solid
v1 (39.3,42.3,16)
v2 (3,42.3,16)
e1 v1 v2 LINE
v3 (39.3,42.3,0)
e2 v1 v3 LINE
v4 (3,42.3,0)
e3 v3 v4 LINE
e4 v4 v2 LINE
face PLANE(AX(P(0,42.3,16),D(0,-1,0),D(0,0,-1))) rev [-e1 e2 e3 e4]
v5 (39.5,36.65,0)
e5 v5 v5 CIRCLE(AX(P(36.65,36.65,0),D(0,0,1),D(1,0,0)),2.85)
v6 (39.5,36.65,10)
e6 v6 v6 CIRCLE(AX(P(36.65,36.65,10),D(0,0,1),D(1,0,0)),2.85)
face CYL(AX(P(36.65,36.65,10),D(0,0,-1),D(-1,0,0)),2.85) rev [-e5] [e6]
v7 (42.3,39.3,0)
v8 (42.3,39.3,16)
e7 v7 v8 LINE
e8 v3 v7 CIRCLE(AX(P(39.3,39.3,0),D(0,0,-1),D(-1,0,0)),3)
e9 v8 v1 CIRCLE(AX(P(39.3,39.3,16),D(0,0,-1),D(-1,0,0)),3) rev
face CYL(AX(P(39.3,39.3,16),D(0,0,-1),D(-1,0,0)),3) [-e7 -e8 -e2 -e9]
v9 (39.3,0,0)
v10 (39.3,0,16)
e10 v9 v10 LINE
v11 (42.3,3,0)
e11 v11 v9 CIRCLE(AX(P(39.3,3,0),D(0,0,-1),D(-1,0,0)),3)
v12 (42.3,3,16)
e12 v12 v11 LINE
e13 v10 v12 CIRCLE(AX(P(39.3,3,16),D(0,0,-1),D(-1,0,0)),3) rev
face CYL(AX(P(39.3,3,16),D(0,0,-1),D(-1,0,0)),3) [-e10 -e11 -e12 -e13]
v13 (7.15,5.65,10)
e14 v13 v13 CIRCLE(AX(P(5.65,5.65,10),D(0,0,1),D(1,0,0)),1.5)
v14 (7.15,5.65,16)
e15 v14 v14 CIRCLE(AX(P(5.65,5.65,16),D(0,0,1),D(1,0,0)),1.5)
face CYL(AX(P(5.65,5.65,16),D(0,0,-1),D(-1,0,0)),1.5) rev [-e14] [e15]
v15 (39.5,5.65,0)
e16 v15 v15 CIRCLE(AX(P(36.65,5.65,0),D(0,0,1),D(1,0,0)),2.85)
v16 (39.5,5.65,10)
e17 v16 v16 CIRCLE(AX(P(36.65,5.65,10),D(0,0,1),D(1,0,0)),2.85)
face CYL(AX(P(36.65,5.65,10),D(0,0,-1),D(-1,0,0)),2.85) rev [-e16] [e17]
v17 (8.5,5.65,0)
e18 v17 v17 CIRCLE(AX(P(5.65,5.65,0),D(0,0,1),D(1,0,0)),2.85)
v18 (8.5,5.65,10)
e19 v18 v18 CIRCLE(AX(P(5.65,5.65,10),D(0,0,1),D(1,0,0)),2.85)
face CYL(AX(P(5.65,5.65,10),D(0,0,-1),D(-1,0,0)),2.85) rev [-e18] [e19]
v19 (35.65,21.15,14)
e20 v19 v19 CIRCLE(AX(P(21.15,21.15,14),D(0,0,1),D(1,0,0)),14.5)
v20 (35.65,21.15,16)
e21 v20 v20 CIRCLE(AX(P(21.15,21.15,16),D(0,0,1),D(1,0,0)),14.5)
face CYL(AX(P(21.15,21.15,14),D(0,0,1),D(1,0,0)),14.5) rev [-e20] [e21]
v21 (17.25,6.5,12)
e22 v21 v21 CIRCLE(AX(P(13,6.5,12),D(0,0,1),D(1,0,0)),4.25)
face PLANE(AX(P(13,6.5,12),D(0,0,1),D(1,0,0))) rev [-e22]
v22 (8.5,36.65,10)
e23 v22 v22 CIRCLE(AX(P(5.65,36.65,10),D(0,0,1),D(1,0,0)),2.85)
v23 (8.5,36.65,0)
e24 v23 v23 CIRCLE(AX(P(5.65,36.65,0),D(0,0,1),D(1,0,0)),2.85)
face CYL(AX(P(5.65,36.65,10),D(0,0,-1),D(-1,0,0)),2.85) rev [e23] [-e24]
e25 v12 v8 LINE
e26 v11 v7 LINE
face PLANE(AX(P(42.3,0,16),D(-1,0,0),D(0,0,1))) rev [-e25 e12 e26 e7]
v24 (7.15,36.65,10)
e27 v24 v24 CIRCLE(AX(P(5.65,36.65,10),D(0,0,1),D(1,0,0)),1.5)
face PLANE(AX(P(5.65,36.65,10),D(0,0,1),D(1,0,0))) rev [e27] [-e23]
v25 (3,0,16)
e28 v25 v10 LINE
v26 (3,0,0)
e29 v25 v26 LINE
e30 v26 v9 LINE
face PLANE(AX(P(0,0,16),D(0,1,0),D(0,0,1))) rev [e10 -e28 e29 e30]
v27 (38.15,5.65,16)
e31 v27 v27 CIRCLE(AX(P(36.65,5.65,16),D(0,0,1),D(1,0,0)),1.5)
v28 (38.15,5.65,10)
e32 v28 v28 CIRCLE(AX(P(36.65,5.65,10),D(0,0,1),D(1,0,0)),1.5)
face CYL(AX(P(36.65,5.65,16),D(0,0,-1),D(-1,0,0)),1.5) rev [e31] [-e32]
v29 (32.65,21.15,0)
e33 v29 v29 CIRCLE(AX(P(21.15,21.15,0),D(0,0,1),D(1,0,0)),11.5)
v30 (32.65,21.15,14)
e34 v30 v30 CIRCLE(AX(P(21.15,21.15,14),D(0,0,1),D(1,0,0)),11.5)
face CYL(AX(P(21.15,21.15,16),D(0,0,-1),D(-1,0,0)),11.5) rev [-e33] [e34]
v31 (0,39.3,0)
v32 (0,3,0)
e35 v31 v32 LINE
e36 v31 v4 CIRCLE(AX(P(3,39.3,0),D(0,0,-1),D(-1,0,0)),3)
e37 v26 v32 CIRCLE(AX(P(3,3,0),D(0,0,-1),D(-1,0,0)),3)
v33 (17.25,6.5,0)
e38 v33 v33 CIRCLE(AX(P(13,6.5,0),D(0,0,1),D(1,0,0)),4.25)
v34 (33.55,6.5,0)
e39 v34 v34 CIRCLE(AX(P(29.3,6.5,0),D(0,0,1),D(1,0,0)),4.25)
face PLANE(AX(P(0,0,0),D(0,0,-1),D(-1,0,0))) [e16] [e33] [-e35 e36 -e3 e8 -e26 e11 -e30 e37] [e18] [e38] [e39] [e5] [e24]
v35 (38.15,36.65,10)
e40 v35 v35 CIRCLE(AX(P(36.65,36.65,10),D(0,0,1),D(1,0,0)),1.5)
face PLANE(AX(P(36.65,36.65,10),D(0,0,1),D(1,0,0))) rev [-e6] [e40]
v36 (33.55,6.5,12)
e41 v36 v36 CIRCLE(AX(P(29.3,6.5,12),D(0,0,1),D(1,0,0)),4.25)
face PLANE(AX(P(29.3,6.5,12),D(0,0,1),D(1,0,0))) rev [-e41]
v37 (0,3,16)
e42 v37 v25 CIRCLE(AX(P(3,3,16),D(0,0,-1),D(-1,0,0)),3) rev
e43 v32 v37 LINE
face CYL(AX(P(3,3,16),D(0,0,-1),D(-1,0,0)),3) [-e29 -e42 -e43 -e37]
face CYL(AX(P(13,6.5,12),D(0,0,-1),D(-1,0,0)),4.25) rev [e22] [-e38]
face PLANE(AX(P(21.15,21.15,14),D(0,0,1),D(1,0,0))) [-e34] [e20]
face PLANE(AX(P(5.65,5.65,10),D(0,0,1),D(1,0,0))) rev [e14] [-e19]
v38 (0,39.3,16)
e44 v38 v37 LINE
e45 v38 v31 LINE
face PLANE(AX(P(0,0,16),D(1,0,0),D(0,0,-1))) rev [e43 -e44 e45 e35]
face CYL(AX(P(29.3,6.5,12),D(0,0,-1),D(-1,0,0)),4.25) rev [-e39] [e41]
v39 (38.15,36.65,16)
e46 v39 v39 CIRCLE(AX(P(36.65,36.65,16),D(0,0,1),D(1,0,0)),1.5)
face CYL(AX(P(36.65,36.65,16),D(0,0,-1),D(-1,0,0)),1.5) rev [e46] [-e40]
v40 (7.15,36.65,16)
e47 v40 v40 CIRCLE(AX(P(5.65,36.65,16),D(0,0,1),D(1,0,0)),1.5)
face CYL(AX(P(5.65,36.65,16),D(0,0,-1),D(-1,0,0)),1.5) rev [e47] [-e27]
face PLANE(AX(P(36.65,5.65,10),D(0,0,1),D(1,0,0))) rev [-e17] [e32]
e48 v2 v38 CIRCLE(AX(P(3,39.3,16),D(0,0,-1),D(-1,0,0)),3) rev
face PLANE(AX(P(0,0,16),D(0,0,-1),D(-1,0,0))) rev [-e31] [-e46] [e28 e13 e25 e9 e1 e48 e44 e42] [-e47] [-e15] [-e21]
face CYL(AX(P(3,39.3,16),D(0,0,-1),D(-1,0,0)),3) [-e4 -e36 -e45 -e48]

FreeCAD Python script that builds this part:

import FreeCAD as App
import Part
import Sketcher
from FreeCAD import Vector


def edges_at(feature, points):
    """Names of the edges that pass closest to the given points."""
    edges = feature.Shape.Edges
    near = lambda p: min(range(len(edges)), key=lambda i: edges[i].distToShape(Part.Vertex(*p))[0])
    return sorted({f"Edge{near(p) + 1}" for p in points})

doc = App.newDocument("Part")
body = doc.addObject("PartDesign::Body", "Body")

sketch1 = body.newObject("Sketcher::SketchObject", "Sketch")
sketch1.AttachmentSupport = (doc.getObject("XY_Plane"), [""])
sketch1.MapMode = "FlatFace"
sketch1.addGeometry(Part.LineSegment(Vector(0, 42.3, 0), Vector(0, 0, 0)), False)
sketch1.addGeometry(Part.LineSegment(Vector(0, 0, 0), Vector(42.3, 0, 0)), False)
sketch1.addGeometry(Part.LineSegment(Vector(42.3, 0, 0), Vector(42.3, 42.3, 0)), False)
sketch1.addGeometry(Part.LineSegment(Vector(42.3, 42.3, 0), Vector(0, 42.3, 0)), False)
sketch1.addConstraint(Sketcher.Constraint("Coincident", 0, 2, 1, 1))
sketch1.addConstraint(Sketcher.Constraint("Coincident", 1, 2, 2, 1))
sketch1.addConstraint(Sketcher.Constraint("Coincident", 2, 2, 3, 1))
sketch1.addConstraint(Sketcher.Constraint("Coincident", 3, 2, 0, 1))
sketch1.addConstraint(Sketcher.Constraint("Vertical", 0))
sketch1.addConstraint(Sketcher.Constraint("Horizontal", 1))
sketch1.addConstraint(Sketcher.Constraint("Vertical", 2))
sketch1.addConstraint(Sketcher.Constraint("Horizontal", 3))
sketch1.addConstraint(Sketcher.Constraint("Coincident", 0, 2, -1, 1))
sketch1.addConstraint(Sketcher.Constraint("Equal", 3, 0))
sketch1.addConstraint(Sketcher.Constraint("DistanceX", 1, 1, 1, 2, 42.3))
pad1 = body.newObject("PartDesign::Pad", "Pad")
pad1.Profile = sketch1
pad1.Length = 16

sketch2 = body.newObject("Sketcher::SketchObject", "Sketch001")
sketch2.AttachmentSupport = (doc.getObject("XY_Plane"), [""])
sketch2.MapMode = "FlatFace"
sketch2.addGeometry(Part.Circle(Vector(36.65, 36.65, 0), Vector(0, 0, 1), 1.5), False)
sketch2.addGeometry(Part.Circle(Vector(5.65, 36.65, 0), Vector(0, 0, 1), 1.5), False)
sketch2.addGeometry(Part.Circle(Vector(5.65, 5.65, 0), Vector(0, 0, 1), 1.5), False)
sketch2.addGeometry(Part.Circle(Vector(36.65, 5.65, 0), Vector(0, 0, 1), 1.5), False)
sketch2.addConstraint(Sketcher.Constraint("Equal", 0, 1))
sketch2.addConstraint(Sketcher.Constraint("Equal", 1, 2))
sketch2.addConstraint(Sketcher.Constraint("Equal", 2, 3))
sketch2.addConstraint(Sketcher.Constraint("Horizontal", 0, 3, 1, 3))
sketch2.addConstraint(Sketcher.Constraint("Horizontal", 2, 3, 3, 3))
sketch2.addConstraint(Sketcher.Constraint("Vertical", 1, 3, 2, 3))
sketch2.addConstraint(Sketcher.Constraint("Vertical", 0, 3, 3, 3))
sketch2.addConstraint(Sketcher.Constraint("Diameter", 0, 3.0))
sketch2.addConstraint(Sketcher.Constraint("DistanceX", 1, 3, 0, 3, 31.0))
sketch2.addConstraint(Sketcher.Constraint("DistanceY", 2, 3, 1, 3, 31.0))
sketch2.addConstraint(Sketcher.Constraint("DistanceX", -1, 1, 0, 3, 36.65))
sketch2.addConstraint(Sketcher.Constraint("DistanceY", -1, 1, 0, 3, 36.65))
pocket1 = body.newObject("PartDesign::Pocket", "Pocket")
pocket1.Profile = sketch2
pocket1.Type = "ThroughAll"
pocket1.Reversed = True
doc.recompute()

fillet = body.newObject("PartDesign::Fillet", "Fillet")
fillet.Base = (pocket1, edges_at(pocket1, [(0, 42.3, 8), (42.3, 42.3, 8)]))
fillet.Radius = 3
doc.recompute()

fillet2 = body.newObject("PartDesign::Fillet", "Fillet001")
fillet2.Base = (fillet, edges_at(fillet, [(42.3, 0, 8), (0, 0, 8)]))
fillet2.Radius = 3

sketch3 = body.newObject("Sketcher::SketchObject", "Sketch002")
sketch3.AttachmentSupport = (doc.getObject("XY_Plane"), [""])
sketch3.MapMode = "FlatFace"
sketch3.addGeometry(Part.Circle(Vector(21.15, 21.15, 0), Vector(0, 0, 1), 11.5), False)
sketch3.addConstraint(Sketcher.Constraint("Diameter", 0, 23.0))
sketch3.addConstraint(Sketcher.Constraint("DistanceX", -1, 1, 0, 3, 21.15))
sketch3.addConstraint(Sketcher.Constraint("DistanceY", -1, 1, 0, 3, 21.15))
pocket2 = body.newObject("PartDesign::Pocket", "Pocket001")
pocket2.Profile = sketch3
pocket2.Type = "ThroughAll"
pocket2.Reversed = True

sketch4 = body.newObject("Sketcher::SketchObject", "Sketch003")
sketch4.AttachmentSupport = (doc.getObject("XY_Plane"), [""])
sketch4.MapMode = "FlatFace"
sketch4.addGeometry(Part.Circle(Vector(36.65, 36.65, 0), Vector(0, 0, 1), 2.85), False)
sketch4.addGeometry(Part.Circle(Vector(5.65, 36.65, 0), Vector(0, 0, 1), 2.85), False)
sketch4.addGeometry(Part.Circle(Vector(5.65, 5.65, 0), Vector(0, 0, 1), 2.85), False)
sketch4.addGeometry(Part.Circle(Vector(36.65, 5.65, 0), Vector(0, 0, 1), 2.85), False)
sketch4.addConstraint(Sketcher.Constraint("Equal", 0, 1))
sketch4.addConstraint(Sketcher.Constraint("Equal", 1, 2))
sketch4.addConstraint(Sketcher.Constraint("Equal", 2, 3))
sketch4.addConstraint(Sketcher.Constraint("Horizontal", 0, 3, 1, 3))
sketch4.addConstraint(Sketcher.Constraint("Horizontal", 2, 3, 3, 3))
sketch4.addConstraint(Sketcher.Constraint("Vertical", 1, 3, 2, 3))
sketch4.addConstraint(Sketcher.Constraint("Vertical", 0, 3, 3, 3))
sketch4.addConstraint(Sketcher.Constraint("Diameter", 0, 5.7))
sketch4.addConstraint(Sketcher.Constraint("DistanceX", 1, 3, 0, 3, 31.0))
sketch4.addConstraint(Sketcher.Constraint("DistanceY", 2, 3, 1, 3, 31.0))
sketch4.addConstraint(Sketcher.Constraint("DistanceX", -1, 1, 0, 3, 36.65))
sketch4.addConstraint(Sketcher.Constraint("DistanceY", -1, 1, 0, 3, 36.65))
pocket3 = body.newObject("PartDesign::Pocket", "Pocket002")
pocket3.Profile = sketch4
pocket3.Length = 10
pocket3.Reversed = True

sketch5 = body.newObject("Sketcher::SketchObject", "Sketch004")
sketch5.AttachmentSupport = (doc.getObject("XY_Plane"), [""])
sketch5.MapMode = "FlatFace"
sketch5.addGeometry(Part.Circle(Vector(29.3, 6.5, 0), Vector(0, 0, 1), 4.25), False)
sketch5.addGeometry(Part.Circle(Vector(13, 6.5, 0), Vector(0, 0, 1), 4.25), False)
sketch5.addConstraint(Sketcher.Constraint("Equal", 0, 1))
sketch5.addConstraint(Sketcher.Constraint("Horizontal", 0, 3, 1, 3))
sketch5.addConstraint(Sketcher.Constraint("Diameter", 0, 8.5))
sketch5.addConstraint(Sketcher.Constraint("DistanceX", -1, 1, 1, 3, 13.0))
sketch5.addConstraint(Sketcher.Constraint("DistanceX", -1, 1, 0, 3, 29.3))
sketch5.addConstraint(Sketcher.Constraint("DistanceY", -1, 1, 0, 3, 6.5))
pocket4 = body.newObject("PartDesign::Pocket", "Pocket003")
pocket4.Profile = sketch5
pocket4.Length = 12
pocket4.Reversed = True

sketch6 = body.newObject("Sketcher::SketchObject", "Sketch005")
sketch6.AttachmentSupport = (doc.getObject("XY_Plane"), [""])
sketch6.MapMode = "FlatFace"
sketch6.AttachmentOffset = App.Placement(Vector(0, 0, 16), App.Rotation())
sketch6.addGeometry(Part.Circle(Vector(21.15, 21.15, 0), Vector(0, 0, 1), 14.5), False)
sketch6.addConstraint(Sketcher.Constraint("Diameter", 0, 29.0))
sketch6.addConstraint(Sketcher.Constraint("DistanceX", -1, 1, 0, 3, 21.15))
sketch6.addConstraint(Sketcher.Constraint("DistanceY", -1, 1, 0, 3, 21.15))
pocket5 = body.newObject("PartDesign::Pocket", "Pocket004")
pocket5.Profile = sketch6
pocket5.Length = 2

doc.recompute()
